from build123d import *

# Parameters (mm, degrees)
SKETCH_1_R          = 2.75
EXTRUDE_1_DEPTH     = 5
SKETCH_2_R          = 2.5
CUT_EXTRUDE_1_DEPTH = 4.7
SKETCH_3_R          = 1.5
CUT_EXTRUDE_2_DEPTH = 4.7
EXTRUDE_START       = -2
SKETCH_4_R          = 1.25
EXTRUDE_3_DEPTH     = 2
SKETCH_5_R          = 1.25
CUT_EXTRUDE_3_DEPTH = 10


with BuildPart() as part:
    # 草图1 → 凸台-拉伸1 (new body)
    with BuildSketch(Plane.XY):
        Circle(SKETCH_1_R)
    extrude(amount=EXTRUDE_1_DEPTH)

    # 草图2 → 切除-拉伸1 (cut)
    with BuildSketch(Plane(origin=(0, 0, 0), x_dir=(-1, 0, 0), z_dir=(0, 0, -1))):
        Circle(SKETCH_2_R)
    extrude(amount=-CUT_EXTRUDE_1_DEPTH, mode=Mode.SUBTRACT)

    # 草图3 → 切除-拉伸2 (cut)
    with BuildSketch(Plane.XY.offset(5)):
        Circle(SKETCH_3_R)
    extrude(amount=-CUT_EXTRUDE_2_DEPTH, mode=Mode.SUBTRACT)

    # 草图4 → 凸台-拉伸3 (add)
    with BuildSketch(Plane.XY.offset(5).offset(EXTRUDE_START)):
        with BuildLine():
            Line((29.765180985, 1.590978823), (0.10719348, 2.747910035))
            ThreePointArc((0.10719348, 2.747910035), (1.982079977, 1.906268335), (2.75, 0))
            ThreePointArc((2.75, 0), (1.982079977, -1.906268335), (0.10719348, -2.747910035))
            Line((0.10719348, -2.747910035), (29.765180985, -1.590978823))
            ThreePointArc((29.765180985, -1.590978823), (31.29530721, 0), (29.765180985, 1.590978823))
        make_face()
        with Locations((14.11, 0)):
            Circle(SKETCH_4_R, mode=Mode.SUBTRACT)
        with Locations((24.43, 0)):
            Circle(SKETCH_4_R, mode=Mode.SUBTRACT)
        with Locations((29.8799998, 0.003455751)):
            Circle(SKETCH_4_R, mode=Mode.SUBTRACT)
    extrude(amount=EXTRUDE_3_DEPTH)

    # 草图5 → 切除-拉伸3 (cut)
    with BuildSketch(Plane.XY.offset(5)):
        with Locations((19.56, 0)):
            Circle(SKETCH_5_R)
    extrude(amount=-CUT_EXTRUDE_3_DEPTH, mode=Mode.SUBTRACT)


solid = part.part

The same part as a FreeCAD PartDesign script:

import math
import FreeCAD as App
import Part
import Sketcher

V = App.Vector
Q = App.Units.Quantity

doc = App.newDocument("Part")
body = doc.addObject("PartDesign::Body", "Body")

sketch1 = body.newObject("Sketcher::SketchObject", "Sketch")
sketch1.AttachmentSupport = (doc.getObject("XY_Plane"), [""])
sketch1.MapMode = "FlatFace"
sketch1.addGeometry(Part.Circle(V(0, 0, 0), V(0, 0, 1), 2.8), False)
sketch1.addConstraint([
    Sketcher.Constraint("Coincident", 0, 3, -1, 1),
    Sketcher.Constraint("Diameter", 0, Q("5.5 mm")),
])
pad1 = body.newObject("PartDesign::Pad", "Pad")
pad1.Profile = sketch1
pad1.Length = 5

sketch2 = body.newObject("Sketcher::SketchObject", "Sketch001")
sketch2.AttachmentSupport = (doc.getObject("XY_Plane"), [""])
sketch2.MapMode = "FlatFace"
sketch2.addGeometry(Part.Circle(V(0, 0, 0), V(0, 0, 1), 2.5), False)
sketch2.addConstraint([
    Sketcher.Constraint("Coincident", 0, 3, -1, 1),
    Sketcher.Constraint("Diameter", 0, Q("5 mm")),
])
pocket1 = body.newObject("PartDesign::Pocket", "Pocket")
pocket1.Profile = sketch2
pocket1.Length = 4.7
pocket1.Reversed = True

sketch3 = body.newObject("Sketcher::SketchObject", "Sketch002")
sketch3.AttachmentSupport = (doc.getObject("XY_Plane"), [""])
sketch3.MapMode = "FlatFace"
sketch3.AttachmentOffset = App.Placement(V(0, 0, 5), App.Rotation())
sketch3.addGeometry(Part.Circle(V(0, 0, 0), V(0, 0, 1), 1.5), False)
sketch3.addConstraint([
    Sketcher.Constraint("Coincident", 0, 3, -1, 1),
    Sketcher.Constraint("Diameter", 0, Q("3 mm")),
])
pocket2 = body.newObject("PartDesign::Pocket", "Pocket001")
pocket2.Profile = sketch3
pocket2.Length = 4.7

sketch4 = body.newObject("Sketcher::SketchObject", "Sketch003")
sketch4.AttachmentSupport = (doc.getObject("XY_Plane"), [""])
sketch4.MapMode = "FlatFace"
sketch4.AttachmentOffset = App.Placement(V(0, 0, 3), App.Rotation())
sketch4.addGeometry([
    Part.LineSegment(V(29.8, 1.6, 0), V(0.1, 2.7, 0)),
    Part.ArcOfCircle(Part.Circle(V(0, 0, 0), V(0, 0, 1), 2.8), math.radians(0), math.radians(88)),
    Part.ArcOfCircle(Part.Circle(V(0, 0, 0), V(0, 0, 1), 2.8), math.radians(-88), math.radians(0)),
    Part.LineSegment(V(0.1, -2.7, 0), V(29.8, -1.6, 0)),
    Part.ArcOfCircle(Part.Circle(V(29.7, 0, 0), V(0, 0, 1), 1.6), math.radians(-88), math.radians(88)),
    Part.Circle(V(14.1, 0, 0), V(0, 0, 1), 1.2),
    Part.Circle(V(24.4, 0, 0), V(0, 0, 1), 1.2),
    Part.Circle(V(29.9, 0, 0), V(0, 0, 1), 1.2),
], False)
sketch4.addConstraint([
    Sketcher.Constraint("Tangent", 0, 2, 1, 2),
    Sketcher.Constraint("Tangent", 1, 1, 2, 2),
    Sketcher.Constraint("Tangent", 2, 1, 3, 1),
    Sketcher.Constraint("Tangent", 3, 2, 4, 1),
    Sketcher.Constraint("Tangent", 4, 2, 0, 1),
    Sketcher.Constraint("Coincident", 1, 3, -1, 1),
    Sketcher.Constraint("Equal", 1, 2),
    Sketcher.Constraint("Equal", 5, 6),
    Sketcher.Constraint("Equal", 6, 7),
    Sketcher.Constraint("PointOnObject", 4, 3, -1),
    Sketcher.Constraint("PointOnObject", 5, 3, -1),
    Sketcher.Constraint("PointOnObject", 6, 3, -1),
    Sketcher.Constraint("PointOnObject", 1, 1, -1),
    Sketcher.Constraint("Diameter", 5, Q("2.5 mm")),
    Sketcher.Constraint("Radius", 1, Q("2.75 mm")),
    Sketcher.Constraint("DistanceX", -1, 1, 5, 3, Q("14.11 mm")),
    Sketcher.Constraint("DistanceX", -1, 1, 6, 3, Q("24.43 mm")),
    Sketcher.Constraint("DistanceX", -1, 1, 7, 3, Q("29.88 mm")),
    Sketcher.Constraint("Radius", 4, Q("1.592189 mm")),
    Sketcher.Constraint("DistanceX", -1, 1, 4, 3, Q("29.703118 mm")),
    Sketcher.Constraint("DistanceY", -1, 1, 7, 3, Q("0.003456 mm")),
])
pad2 = body.newObject("PartDesign::Pad", "Pad001")
pad2.Profile = sketch4
pad2.Length = 2

sketch5 = body.newObject("Sketcher::SketchObject", "Sketch004")
sketch5.AttachmentSupport = (doc.getObject("XY_Plane"), [""])
sketch5.MapMode = "FlatFace"
sketch5.AttachmentOffset = App.Placement(V(0, 0, 5), App.Rotation())
sketch5.addGeometry(Part.Circle(V(19.6, 0, 0), V(0, 0, 1), 1.2), False)
sketch5.addConstraint([
    Sketcher.Constraint("PointOnObject", 0, 3, -1),
    Sketcher.Constraint("Diameter", 0, Q("2.5 mm")),
    Sketcher.Constraint("DistanceX", -1, 1, 0, 3, Q("19.56 mm")),
])
pocket3 = body.newObject("PartDesign::Pocket", "Pocket002")
pocket3.Profile = sketch5
pocket3.Length = 10

doc.recompute()
